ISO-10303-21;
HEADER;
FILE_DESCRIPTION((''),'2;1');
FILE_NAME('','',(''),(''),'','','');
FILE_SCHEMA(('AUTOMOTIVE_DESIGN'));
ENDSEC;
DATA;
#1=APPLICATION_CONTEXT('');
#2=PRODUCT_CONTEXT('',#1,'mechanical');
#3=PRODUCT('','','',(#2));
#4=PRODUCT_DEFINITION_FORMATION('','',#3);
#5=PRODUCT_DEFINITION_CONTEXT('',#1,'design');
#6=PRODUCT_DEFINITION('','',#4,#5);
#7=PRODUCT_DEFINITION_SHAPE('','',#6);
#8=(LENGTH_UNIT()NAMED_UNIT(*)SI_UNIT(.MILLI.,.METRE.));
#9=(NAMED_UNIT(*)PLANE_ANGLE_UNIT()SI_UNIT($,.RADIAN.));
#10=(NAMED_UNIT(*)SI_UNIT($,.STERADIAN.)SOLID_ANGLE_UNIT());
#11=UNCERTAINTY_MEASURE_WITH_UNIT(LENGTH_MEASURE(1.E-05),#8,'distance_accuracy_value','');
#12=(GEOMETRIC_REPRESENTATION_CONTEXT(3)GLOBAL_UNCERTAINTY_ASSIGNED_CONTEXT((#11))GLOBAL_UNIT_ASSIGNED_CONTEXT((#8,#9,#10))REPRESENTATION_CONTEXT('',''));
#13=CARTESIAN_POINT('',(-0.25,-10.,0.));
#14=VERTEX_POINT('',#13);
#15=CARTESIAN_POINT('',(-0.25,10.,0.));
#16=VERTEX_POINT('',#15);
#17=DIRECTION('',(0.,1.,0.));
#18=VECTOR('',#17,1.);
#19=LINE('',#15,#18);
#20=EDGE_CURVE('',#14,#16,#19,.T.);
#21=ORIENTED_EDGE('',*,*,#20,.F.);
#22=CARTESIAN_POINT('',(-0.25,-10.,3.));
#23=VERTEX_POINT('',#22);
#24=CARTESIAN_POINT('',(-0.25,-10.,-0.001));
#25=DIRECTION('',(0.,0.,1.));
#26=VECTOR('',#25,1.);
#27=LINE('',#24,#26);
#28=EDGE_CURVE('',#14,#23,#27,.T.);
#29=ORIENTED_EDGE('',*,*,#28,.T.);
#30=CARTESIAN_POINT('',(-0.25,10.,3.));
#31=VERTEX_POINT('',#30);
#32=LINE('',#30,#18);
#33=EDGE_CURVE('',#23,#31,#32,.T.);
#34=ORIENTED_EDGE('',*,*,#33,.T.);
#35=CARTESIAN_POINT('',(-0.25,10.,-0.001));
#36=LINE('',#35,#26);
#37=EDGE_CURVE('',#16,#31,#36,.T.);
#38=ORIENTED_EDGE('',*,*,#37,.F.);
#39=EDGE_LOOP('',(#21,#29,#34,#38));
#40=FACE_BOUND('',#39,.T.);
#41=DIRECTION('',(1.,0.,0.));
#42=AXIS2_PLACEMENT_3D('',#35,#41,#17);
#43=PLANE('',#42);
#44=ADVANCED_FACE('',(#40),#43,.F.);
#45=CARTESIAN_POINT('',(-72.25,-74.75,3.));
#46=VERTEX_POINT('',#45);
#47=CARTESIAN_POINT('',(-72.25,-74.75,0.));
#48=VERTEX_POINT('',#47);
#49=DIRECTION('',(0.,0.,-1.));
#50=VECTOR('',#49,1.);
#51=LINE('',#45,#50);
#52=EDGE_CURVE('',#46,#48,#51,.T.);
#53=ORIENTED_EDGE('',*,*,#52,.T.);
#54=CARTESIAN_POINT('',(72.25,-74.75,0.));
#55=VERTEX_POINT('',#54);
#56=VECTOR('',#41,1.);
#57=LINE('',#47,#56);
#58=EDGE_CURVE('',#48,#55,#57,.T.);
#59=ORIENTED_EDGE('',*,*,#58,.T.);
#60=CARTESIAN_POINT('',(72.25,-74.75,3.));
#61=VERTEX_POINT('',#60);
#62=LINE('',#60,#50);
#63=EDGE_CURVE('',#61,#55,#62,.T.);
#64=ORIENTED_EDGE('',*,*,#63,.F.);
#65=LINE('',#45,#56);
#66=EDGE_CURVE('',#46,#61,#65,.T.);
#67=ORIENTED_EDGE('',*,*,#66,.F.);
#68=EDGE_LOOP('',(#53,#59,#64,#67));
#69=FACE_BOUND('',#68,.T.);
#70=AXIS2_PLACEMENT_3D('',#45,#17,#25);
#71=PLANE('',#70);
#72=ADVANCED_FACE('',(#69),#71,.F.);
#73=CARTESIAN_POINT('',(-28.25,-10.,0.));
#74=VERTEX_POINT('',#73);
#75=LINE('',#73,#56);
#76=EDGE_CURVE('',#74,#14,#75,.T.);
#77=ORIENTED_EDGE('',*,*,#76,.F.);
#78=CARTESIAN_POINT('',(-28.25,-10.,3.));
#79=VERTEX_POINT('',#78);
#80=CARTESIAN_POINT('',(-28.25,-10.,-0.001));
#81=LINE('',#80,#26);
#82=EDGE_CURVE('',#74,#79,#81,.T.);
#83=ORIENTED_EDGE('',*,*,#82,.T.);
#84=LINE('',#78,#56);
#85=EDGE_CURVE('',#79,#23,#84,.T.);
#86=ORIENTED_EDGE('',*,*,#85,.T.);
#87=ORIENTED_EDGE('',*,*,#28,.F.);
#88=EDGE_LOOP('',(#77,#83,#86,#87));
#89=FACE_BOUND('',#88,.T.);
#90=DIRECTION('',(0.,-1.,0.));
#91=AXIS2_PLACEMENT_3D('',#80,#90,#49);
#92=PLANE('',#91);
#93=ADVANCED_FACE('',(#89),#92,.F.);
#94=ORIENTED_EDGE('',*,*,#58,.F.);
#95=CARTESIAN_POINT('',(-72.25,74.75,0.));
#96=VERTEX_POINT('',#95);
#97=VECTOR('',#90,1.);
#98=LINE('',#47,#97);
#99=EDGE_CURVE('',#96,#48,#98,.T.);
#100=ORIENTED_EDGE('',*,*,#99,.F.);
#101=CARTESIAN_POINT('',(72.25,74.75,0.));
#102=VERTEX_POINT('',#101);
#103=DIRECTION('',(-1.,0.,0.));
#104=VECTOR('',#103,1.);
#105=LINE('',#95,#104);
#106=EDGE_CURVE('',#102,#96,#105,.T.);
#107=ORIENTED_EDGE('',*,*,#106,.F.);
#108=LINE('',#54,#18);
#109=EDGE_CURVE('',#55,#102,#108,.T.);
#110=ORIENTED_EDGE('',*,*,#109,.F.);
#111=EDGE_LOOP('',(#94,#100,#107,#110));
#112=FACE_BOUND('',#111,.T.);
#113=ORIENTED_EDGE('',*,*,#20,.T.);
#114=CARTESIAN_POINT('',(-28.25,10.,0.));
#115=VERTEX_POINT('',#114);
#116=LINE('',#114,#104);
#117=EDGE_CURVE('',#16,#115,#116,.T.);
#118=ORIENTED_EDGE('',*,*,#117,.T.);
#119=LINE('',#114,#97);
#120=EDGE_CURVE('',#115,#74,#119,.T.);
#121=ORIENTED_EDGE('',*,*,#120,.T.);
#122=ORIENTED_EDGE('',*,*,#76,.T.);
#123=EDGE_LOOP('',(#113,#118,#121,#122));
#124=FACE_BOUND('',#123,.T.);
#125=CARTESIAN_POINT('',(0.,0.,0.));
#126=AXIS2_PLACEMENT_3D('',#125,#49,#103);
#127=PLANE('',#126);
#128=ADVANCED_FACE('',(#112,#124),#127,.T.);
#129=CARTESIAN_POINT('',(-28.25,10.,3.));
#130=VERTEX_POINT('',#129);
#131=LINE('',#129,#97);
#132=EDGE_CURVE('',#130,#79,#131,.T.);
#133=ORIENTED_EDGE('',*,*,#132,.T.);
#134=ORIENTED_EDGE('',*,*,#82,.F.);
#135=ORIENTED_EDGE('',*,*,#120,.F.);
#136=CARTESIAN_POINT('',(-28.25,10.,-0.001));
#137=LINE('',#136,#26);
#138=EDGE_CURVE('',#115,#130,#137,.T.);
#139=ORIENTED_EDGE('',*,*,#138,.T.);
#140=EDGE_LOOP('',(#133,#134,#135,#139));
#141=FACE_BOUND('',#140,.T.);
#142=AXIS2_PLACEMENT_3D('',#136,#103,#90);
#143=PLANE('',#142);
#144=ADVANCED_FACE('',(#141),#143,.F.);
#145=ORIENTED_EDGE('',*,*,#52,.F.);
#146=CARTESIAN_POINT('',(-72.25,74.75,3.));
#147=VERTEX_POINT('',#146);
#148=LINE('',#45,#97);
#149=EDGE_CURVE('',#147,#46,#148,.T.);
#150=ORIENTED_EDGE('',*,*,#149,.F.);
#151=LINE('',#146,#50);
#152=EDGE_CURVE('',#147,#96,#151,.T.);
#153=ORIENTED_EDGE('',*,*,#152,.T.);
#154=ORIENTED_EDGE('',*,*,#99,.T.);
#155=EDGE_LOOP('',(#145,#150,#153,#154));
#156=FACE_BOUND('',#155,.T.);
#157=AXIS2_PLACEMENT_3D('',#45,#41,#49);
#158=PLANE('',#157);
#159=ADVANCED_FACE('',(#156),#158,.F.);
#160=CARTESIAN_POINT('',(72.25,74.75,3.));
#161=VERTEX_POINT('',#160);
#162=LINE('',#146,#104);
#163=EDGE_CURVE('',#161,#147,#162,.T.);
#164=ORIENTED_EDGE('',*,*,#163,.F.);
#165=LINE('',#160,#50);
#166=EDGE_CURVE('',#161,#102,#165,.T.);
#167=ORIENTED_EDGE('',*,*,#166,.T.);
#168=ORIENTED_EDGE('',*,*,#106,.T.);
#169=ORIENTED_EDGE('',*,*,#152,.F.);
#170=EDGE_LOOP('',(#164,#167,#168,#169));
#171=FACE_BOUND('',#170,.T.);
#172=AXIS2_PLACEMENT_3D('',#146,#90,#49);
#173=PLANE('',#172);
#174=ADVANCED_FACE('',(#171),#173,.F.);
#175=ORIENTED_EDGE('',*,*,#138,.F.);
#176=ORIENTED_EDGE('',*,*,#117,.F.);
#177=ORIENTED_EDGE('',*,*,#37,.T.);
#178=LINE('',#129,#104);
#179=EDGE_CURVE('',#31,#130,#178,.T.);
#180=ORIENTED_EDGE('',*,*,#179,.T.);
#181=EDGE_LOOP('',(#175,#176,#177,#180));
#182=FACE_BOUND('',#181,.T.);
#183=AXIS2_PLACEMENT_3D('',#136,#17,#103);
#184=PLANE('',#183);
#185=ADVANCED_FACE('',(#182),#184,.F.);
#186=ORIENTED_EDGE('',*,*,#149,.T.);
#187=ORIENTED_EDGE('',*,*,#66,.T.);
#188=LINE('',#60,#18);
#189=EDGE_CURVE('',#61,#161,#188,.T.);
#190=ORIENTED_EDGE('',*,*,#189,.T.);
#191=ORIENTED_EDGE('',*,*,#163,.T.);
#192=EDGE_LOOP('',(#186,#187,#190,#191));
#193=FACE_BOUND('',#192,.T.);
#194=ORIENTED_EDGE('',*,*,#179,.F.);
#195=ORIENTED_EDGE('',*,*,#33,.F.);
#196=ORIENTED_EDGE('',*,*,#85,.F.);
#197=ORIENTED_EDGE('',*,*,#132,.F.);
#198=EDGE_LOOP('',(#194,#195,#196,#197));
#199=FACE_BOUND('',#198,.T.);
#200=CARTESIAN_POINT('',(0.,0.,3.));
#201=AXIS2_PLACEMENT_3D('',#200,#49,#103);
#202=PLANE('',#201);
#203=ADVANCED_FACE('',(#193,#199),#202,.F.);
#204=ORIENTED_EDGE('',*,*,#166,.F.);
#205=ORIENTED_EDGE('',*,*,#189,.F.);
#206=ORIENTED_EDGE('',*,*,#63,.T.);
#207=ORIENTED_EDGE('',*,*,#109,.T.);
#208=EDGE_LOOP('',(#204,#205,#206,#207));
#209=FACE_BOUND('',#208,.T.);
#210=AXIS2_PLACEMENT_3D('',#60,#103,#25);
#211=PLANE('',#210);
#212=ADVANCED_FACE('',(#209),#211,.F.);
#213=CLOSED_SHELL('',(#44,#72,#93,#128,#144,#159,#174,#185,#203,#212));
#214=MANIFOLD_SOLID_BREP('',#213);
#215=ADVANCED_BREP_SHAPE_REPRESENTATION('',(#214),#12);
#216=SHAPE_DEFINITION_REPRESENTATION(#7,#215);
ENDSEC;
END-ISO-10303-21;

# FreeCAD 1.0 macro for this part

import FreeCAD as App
import Part
import Sketcher
Q = App.Units.Quantity


def add_polygon(sketch, points):
    """Adds a closed chain of lines whose ends are joined by coincident constraints."""
    first, n = sketch.GeometryCount, len(points)
    for a, b in zip(points, points[1:] + points[:1]):
        sketch.addGeometry(Part.LineSegment(App.Vector(*a, 0), App.Vector(*b, 0)), False)
    for i in range(n):
        sketch.addConstraint(Sketcher.Constraint("Coincident", first + i, 2, first + (i + 1) % n, 1))

doc = App.newDocument("Part")
body = doc.addObject("PartDesign::Body", "Body")

sketch1 = doc.addObject("Sketcher::SketchObject", "Sketch")
body.addObject(sketch1)
sketch1.AttachmentSupport = (doc.XY_Plane, [""])
sketch1.MapMode = "FlatFace"
add_polygon(sketch1, [(-72, 75), (-72, -75), (72, -75), (72, 75)])
sketch1.addConstraint([
    Sketcher.Constraint("Vertical", 0),
    Sketcher.Constraint("Horizontal", 1),
    Sketcher.Constraint("Vertical", 2),
    Sketcher.Constraint("Horizontal", 3),
    Sketcher.Constraint("Symmetric", 0, 2, 2, 2, -1, 1),
    Sketcher.Constraint("DistanceX", 1, 1, 1, 2, Q("144.5 mm")),
    Sketcher.Constraint("DistanceY", 0, 2, 0, 1, Q("149.5 mm")),
])
pad1 = doc.addObject("PartDesign::Pad", "Pad")
body.addObject(pad1)
pad1.Profile = sketch1
pad1.Length = 3

sketch2 = doc.addObject("Sketcher::SketchObject", "Sketch001")
body.addObject(sketch2)
sketch2.AttachmentSupport = (doc.XY_Plane, [""])
sketch2.MapMode = "FlatFace"
sketch2.AttachmentOffset = App.Placement(App.Vector(0, 0, 3), App.Rotation())
add_polygon(sketch2, [(-28, 10), (-28, -10), (0, -10), (0, 10)])
sketch2.addConstraint([
    Sketcher.Constraint("Vertical", 0),
    Sketcher.Constraint("Horizontal", 1),
    Sketcher.Constraint("Vertical", 2),
    Sketcher.Constraint("Horizontal", 3),
    Sketcher.Constraint("DistanceX", 1, 1, 1, 2, Q("28 mm")),
    Sketcher.Constraint("DistanceY", 0, 2, 0, 1, Q("20 mm")),
    Sketcher.Constraint("DistanceY", 0, 2, -1, 1, Q("10 mm")),
    Sketcher.Constraint("DistanceX", 0, 2, -1, 1, Q("28.25 mm")),
])
pocket1 = doc.addObject("PartDesign::Pocket", "Pocket")
body.addObject(pocket1)
pocket1.Profile = sketch2
pocket1.Type = "UpToFirst"

doc.recompute()
